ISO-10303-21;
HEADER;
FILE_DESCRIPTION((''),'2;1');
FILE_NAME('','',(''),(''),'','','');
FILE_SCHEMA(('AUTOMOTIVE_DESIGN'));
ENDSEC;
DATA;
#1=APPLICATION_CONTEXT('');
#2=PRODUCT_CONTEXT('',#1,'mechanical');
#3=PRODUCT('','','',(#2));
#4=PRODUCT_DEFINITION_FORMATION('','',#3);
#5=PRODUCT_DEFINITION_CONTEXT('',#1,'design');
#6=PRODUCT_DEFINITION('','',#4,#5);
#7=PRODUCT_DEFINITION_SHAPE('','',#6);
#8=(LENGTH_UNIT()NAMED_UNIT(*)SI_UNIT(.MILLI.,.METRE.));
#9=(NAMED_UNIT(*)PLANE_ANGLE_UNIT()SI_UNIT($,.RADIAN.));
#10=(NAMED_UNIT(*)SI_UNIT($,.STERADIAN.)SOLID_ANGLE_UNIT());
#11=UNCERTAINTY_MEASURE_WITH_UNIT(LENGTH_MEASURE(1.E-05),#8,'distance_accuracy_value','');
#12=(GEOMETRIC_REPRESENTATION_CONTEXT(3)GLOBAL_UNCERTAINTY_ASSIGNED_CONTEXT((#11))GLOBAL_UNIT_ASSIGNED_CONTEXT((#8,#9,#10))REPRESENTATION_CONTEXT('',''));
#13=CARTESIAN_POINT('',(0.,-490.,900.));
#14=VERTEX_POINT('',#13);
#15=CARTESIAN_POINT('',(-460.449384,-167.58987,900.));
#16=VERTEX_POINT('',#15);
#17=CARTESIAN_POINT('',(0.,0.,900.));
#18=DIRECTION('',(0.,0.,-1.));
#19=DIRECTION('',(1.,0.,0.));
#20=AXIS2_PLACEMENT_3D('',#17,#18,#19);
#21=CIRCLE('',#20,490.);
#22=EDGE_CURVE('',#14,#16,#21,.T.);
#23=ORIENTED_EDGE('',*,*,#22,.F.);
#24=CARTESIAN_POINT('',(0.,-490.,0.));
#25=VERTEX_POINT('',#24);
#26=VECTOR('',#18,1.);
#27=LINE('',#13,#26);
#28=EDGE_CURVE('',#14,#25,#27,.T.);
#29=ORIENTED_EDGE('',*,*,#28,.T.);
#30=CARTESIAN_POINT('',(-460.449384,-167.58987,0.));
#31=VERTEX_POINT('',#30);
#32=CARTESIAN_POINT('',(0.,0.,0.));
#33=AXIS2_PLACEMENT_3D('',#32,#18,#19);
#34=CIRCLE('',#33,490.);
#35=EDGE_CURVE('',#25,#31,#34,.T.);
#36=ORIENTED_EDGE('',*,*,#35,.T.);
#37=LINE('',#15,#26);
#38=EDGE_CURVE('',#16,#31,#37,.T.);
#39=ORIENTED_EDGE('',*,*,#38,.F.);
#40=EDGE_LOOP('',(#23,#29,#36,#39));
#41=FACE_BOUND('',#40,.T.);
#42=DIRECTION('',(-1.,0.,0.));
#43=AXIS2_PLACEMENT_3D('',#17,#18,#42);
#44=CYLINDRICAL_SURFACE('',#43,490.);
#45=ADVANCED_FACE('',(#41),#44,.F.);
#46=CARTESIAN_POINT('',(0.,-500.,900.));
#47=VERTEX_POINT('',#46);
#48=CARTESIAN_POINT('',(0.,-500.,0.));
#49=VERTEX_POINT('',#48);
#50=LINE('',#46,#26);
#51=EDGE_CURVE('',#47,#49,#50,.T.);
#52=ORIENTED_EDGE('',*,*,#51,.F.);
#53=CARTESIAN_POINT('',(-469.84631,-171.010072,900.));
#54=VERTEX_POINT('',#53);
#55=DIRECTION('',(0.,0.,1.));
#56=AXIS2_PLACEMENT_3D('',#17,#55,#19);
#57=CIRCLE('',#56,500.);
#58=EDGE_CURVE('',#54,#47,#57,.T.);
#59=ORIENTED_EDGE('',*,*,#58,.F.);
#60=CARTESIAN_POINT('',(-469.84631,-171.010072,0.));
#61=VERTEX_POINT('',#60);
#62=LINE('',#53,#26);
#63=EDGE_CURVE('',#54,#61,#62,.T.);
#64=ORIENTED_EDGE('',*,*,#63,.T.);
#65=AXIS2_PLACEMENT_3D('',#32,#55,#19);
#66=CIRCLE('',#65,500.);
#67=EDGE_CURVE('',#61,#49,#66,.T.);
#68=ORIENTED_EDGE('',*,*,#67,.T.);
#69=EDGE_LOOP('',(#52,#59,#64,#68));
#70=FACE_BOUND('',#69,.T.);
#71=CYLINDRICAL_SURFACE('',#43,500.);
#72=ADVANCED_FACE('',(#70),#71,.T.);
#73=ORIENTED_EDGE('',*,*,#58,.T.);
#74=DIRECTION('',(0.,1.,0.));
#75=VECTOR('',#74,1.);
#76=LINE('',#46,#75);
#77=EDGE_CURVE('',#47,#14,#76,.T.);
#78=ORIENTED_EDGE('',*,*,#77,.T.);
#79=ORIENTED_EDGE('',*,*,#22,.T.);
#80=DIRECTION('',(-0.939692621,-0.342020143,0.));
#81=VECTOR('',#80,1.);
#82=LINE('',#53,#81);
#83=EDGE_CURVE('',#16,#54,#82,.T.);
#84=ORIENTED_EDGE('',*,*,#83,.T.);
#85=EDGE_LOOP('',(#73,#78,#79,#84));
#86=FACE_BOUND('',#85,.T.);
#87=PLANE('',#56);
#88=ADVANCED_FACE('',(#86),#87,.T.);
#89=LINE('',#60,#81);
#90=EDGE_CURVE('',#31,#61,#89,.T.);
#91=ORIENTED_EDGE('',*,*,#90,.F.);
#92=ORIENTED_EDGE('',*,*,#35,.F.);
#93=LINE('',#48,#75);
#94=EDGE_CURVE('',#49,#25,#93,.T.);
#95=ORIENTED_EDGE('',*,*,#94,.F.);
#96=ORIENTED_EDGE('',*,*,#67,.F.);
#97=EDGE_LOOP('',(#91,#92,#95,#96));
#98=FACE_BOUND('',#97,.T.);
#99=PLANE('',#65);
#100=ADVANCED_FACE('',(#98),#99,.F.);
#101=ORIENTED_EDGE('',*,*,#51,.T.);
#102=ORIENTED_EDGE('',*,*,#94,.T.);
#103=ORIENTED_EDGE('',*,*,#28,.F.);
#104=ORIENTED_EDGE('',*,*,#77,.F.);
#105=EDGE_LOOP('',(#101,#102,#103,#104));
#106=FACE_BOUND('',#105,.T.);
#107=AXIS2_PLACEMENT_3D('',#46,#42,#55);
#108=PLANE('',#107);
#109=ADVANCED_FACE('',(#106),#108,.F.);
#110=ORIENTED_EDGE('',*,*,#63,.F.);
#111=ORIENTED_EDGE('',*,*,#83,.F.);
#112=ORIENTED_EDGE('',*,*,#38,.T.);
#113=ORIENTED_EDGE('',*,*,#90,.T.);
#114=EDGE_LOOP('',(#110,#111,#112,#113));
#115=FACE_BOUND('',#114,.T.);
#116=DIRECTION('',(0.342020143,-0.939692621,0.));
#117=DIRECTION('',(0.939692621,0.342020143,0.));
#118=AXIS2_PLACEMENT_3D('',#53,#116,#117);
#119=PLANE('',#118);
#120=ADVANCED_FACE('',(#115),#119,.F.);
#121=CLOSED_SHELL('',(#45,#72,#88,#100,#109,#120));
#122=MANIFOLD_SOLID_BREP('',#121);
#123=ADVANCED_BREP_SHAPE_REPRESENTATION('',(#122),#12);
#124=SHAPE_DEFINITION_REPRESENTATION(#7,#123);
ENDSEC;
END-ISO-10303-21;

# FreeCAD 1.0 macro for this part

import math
import FreeCAD as App
import Part
import Sketcher
Q = App.Units.Quantity

doc = App.newDocument("Part")
body = doc.addObject("PartDesign::Body", "Body")

# Sketch on XY plane
sketch1 = doc.addObject("Sketcher::SketchObject", "Sketch")
body.addObject(sketch1)
sketch1.AttachmentSupport = (doc.XY_Plane, [""])
sketch1.MapMode = "FlatFace"
sketch1.addGeometry(Part.LineSegment(App.Vector(-460.449384, -167.58987, 0), App.Vector(-469.84631, -171.010072, 0)), False)
sketch1.addGeometry(Part.ArcOfCircle(Part.Circle(App.Vector(0, 0, 0), App.Vector(0, 0, 1), 500), math.radians(-160), math.radians(-90)), False)
sketch1.addGeometry(Part.LineSegment(App.Vector(0, -500, 0), App.Vector(0, -490, 0)), False)
sketch1.addGeometry(Part.ArcOfCircle(Part.Circle(App.Vector(0, 0, 0), App.Vector(0, 0, 1), 490), math.radians(-160), math.radians(-90)), False)
sketch1.addConstraint(Sketcher.Constraint("Coincident", 0, 2, 1, 1))
sketch1.addConstraint(Sketcher.Constraint("Coincident", 1, 2, 2, 1))
sketch1.addConstraint(Sketcher.Constraint("Coincident", 2, 2, 3, 2))
sketch1.addConstraint(Sketcher.Constraint("Coincident", 3, 1, 0, 1))
sketch1.addConstraint(Sketcher.Constraint("Vertical", 2))
sketch1.addConstraint(Sketcher.Constraint("Coincident", 1, 3, -1, 1))
sketch1.addConstraint(Sketcher.Constraint("Coincident", 3, 3, -1, 1))
sketch1.addConstraint(Sketcher.Constraint("PointOnObject", 2, 2, -2))
sketch1.addConstraint(Sketcher.Constraint("Radius", 1, 500.0))
sketch1.addConstraint(Sketcher.Constraint("Radius", 3, 490.0))
sketch1.addConstraint(Sketcher.Constraint("Angle", 0, Q("-160 deg")))
sketch1.addConstraint(Sketcher.Constraint("DistanceX", 0, 2, -1, 1, 469.84631))
pad1 = doc.addObject("PartDesign::Pad", "Pad")
body.addObject(pad1)
pad1.Profile = sketch1
pad1.Length = 900

doc.recompute()
